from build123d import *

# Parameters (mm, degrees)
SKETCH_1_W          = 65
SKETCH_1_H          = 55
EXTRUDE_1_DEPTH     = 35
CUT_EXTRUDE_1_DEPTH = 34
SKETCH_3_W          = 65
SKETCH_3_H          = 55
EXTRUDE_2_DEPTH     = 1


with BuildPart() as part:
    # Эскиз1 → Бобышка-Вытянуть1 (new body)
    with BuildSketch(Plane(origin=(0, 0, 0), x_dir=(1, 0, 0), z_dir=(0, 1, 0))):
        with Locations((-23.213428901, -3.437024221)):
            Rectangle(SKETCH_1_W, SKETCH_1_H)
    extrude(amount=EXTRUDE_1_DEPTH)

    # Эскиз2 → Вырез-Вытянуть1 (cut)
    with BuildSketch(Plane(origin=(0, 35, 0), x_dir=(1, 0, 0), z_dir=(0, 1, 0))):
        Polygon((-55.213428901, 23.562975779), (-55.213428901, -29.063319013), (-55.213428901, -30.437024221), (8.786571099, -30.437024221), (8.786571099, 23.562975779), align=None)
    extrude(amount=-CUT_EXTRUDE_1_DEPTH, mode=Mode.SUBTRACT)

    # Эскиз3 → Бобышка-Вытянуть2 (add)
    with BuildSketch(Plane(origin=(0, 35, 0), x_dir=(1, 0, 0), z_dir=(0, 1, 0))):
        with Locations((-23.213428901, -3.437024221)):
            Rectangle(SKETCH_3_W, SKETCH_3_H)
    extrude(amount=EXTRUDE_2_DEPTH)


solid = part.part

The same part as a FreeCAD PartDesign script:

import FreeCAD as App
import Part
import Sketcher
from FreeCAD import Vector
Q = App.Units.Quantity

doc = App.newDocument("Part")
body = doc.addObject("PartDesign::Body", "Body")

# Sketch on XZ plane
sketch1 = body.newObject("Sketcher::SketchObject", "Sketch")
sketch1.AttachmentSupport = (doc.getObject("XZ_Plane"), [""])
sketch1.MapMode = "FlatFace"
sketch1.addGeometry([
    Part.LineSegment(Vector(-56, -24, 0), Vector(-56, 31, 0)),
    Part.LineSegment(Vector(-56, 31, 0), Vector(9, 31, 0)),
    Part.LineSegment(Vector(9, 31, 0), Vector(9, -24, 0)),
    Part.LineSegment(Vector(9, -24, 0), Vector(-56, -24, 0)),
], False)
sketch1.addConstraint([
    Sketcher.Constraint("Coincident", 0, 2, 1, 1),
    Sketcher.Constraint("Coincident", 1, 2, 2, 1),
    Sketcher.Constraint("Coincident", 2, 2, 3, 1),
    Sketcher.Constraint("Coincident", 3, 2, 0, 1),
    Sketcher.Constraint("Vertical", 0),
    Sketcher.Constraint("Horizontal", 1),
    Sketcher.Constraint("Vertical", 2),
    Sketcher.Constraint("Horizontal", 3),
    Sketcher.Constraint("DistanceX", 1, 1, 1, 2, Q("65 mm")),
    Sketcher.Constraint("DistanceY", 0, 1, 0, 2, Q("55 mm")),
    Sketcher.Constraint("DistanceX", 0, 2, -1, 1, Q("55.713429 mm")),
    Sketcher.Constraint("DistanceY", -1, 1, 0, 2, Q("30.937024 mm")),
])
pad1 = body.newObject("PartDesign::Pad", "Pad")
pad1.Profile = sketch1
pad1.Length = 35
pad1.Reversed = True

# Sketch on XZ plane
sketch2 = body.newObject("Sketcher::SketchObject", "Sketch001")
sketch2.AttachmentSupport = (doc.getObject("XZ_Plane"), [""])
sketch2.MapMode = "FlatFace"
sketch2.AttachmentOffset = App.Placement(Vector(0, 0, -35), App.Rotation())
sketch2.addGeometry([
    Part.LineSegment(Vector(-55, -24, 0), Vector(-55, 30, 0)),
    Part.LineSegment(Vector(-55, 30, 0), Vector(9, 30, 0)),
    Part.LineSegment(Vector(9, 30, 0), Vector(9, -24, 0)),
    Part.LineSegment(Vector(9, -24, 0), Vector(-55, -24, 0)),
], False)
sketch2.addConstraint([
    Sketcher.Constraint("Coincident", 0, 2, 1, 1),
    Sketcher.Constraint("Coincident", 1, 2, 2, 1),
    Sketcher.Constraint("Coincident", 2, 2, 3, 1),
    Sketcher.Constraint("Coincident", 3, 2, 0, 1),
    Sketcher.Constraint("Vertical", 0),
    Sketcher.Constraint("Horizontal", 1),
    Sketcher.Constraint("Vertical", 2),
    Sketcher.Constraint("Horizontal", 3),
    Sketcher.Constraint("DistanceX", 1, 1, 1, 2, Q("64 mm")),
    Sketcher.Constraint("DistanceY", 0, 1, 0, 2, Q("54 mm")),
    Sketcher.Constraint("DistanceX", 0, 2, -1, 1, Q("55.213429 mm")),
    Sketcher.Constraint("DistanceY", -1, 1, 0, 2, Q("30.437024 mm")),
])
pocket1 = body.newObject("PartDesign::Pocket", "Pocket")
pocket1.Profile = sketch2
pocket1.Length = 34
pocket1.Reversed = True

# Sketch on XZ plane
sketch3 = body.newObject("Sketcher::SketchObject", "Sketch002")
sketch3.AttachmentSupport = (doc.getObject("XZ_Plane"), [""])
sketch3.MapMode = "FlatFace"
sketch3.AttachmentOffset = App.Placement(Vector(0, 0, -35), App.Rotation())
sketch3.addGeometry([
    Part.LineSegment(Vector(-56, -24, 0), Vector(-56, 31, 0)),
    Part.LineSegment(Vector(-56, 31, 0), Vector(9, 31, 0)),
    Part.LineSegment(Vector(9, 31, 0), Vector(9, -24, 0)),
    Part.LineSegment(Vector(9, -24, 0), Vector(-56, -24, 0)),
], False)
sketch3.addConstraint([
    Sketcher.Constraint("Coincident", 0, 2, 1, 1),
    Sketcher.Constraint("Coincident", 1, 2, 2, 1),
    Sketcher.Constraint("Coincident", 2, 2, 3, 1),
    Sketcher.Constraint("Coincident", 3, 2, 0, 1),
    Sketcher.Constraint("Vertical", 0),
    Sketcher.Constraint("Horizontal", 1),
    Sketcher.Constraint("Vertical", 2),
    Sketcher.Constraint("Horizontal", 3),
    Sketcher.Constraint("DistanceX", 1, 1, 1, 2, Q("65 mm")),
    Sketcher.Constraint("DistanceY", 0, 1, 0, 2, Q("55 mm")),
    Sketcher.Constraint("DistanceX", 0, 2, -1, 1, Q("55.713429 mm")),
    Sketcher.Constraint("DistanceY", -1, 1, 0, 2, Q("30.937024 mm")),
])
pad2 = body.newObject("PartDesign::Pad", "Pad001")
pad2.Profile = sketch3
pad2.Length = 1
pad2.Reversed = True

doc.recompute()
